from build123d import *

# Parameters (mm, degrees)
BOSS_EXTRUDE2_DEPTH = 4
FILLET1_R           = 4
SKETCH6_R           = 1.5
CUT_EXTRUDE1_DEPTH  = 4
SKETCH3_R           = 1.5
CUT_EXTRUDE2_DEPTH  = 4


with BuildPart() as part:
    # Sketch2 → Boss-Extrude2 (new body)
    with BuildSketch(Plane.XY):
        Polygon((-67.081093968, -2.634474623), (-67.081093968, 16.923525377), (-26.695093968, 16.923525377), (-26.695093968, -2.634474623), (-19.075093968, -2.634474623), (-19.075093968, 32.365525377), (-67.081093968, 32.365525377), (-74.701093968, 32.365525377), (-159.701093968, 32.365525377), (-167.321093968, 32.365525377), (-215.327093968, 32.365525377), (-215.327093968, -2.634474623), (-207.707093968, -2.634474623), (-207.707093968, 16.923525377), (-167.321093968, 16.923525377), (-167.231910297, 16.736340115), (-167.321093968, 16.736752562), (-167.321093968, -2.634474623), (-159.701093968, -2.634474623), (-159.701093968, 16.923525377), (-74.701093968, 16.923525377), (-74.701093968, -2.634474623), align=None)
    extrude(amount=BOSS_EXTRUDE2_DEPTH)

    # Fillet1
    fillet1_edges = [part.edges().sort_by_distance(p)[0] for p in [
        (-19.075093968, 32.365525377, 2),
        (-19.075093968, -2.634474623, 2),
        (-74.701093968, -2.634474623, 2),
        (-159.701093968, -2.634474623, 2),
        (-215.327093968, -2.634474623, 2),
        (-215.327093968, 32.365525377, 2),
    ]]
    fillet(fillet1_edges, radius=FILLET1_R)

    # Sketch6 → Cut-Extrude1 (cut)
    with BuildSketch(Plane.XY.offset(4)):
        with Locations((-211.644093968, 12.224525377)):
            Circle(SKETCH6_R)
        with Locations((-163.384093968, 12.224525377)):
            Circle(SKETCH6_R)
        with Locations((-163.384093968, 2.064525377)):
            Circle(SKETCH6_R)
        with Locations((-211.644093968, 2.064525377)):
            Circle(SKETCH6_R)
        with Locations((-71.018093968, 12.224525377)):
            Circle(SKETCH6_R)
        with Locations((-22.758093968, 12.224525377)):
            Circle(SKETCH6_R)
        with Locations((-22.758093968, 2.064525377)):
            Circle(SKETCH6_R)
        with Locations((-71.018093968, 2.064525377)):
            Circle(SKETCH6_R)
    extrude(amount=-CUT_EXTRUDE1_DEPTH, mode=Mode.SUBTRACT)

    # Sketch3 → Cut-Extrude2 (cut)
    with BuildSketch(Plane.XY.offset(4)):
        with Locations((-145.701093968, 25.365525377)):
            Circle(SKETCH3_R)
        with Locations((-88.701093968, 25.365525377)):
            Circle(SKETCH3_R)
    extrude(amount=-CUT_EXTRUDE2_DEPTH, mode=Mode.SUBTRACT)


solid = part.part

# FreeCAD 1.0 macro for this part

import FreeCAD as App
import Part
import Sketcher

V = App.Vector
Q = App.Units.Quantity


def edges_at(feature, points):
    """Names of the edges that pass closest to the given points."""
    edges = feature.Shape.Edges
    near = lambda p: min(range(len(edges)), key=lambda i: edges[i].distToShape(Part.Vertex(*p))[0])
    return sorted({f"Edge{near(p) + 1}" for p in points})


def add_polygon(sketch, points):
    """Adds a closed chain of lines whose ends are joined by coincident constraints."""
    first, n = sketch.GeometryCount, len(points)
    for a, b in zip(points, points[1:] + points[:1]):
        sketch.addGeometry(Part.LineSegment(App.Vector(*a, 0), App.Vector(*b, 0)), False)
    for i in range(n):
        sketch.addConstraint(Sketcher.Constraint("Coincident", first + i, 2, first + (i + 1) % n, 1))

doc = App.newDocument("Part")
body = doc.addObject("PartDesign::Body", "Body")

# Sketch on XY plane
sketch1 = body.newObject("Sketcher::SketchObject", "Sketch")
sketch1.AttachmentSupport = (doc.getObject("XY_Plane"), [""])
sketch1.MapMode = "FlatFace"
add_polygon(sketch1, [(-67.08, -2.63), (-67.08, 16.92), (-26.7, 16.92), (-26.7, -2.63), (-19.08, -2.63), (-19.08, 32.37), (-215.33, 32.37), (-215.33, -2.63), (-207.71, -2.63), (-207.71, 16.92), (-167.32, 16.92), (-167.23, 16.74), (-167.32, 16.74), (-167.32, -2.63), (-159.7, -2.63), (-159.7, 16.92), (-74.7, 16.92), (-74.7, -2.63)])  # lines 0-17
sketch1.addConstraint([
    Sketcher.Constraint("Vertical", 0),
    Sketcher.Constraint("Horizontal", 1),
    Sketcher.Constraint("Vertical", 2),
    Sketcher.Constraint("Horizontal", 3),
    Sketcher.Constraint("Vertical", 4),
    Sketcher.Constraint("Horizontal", 5),
    Sketcher.Constraint("Vertical", 6),
    Sketcher.Constraint("Horizontal", 7),
    Sketcher.Constraint("Vertical", 8),
    Sketcher.Constraint("Horizontal", 9),
    Sketcher.Constraint("Vertical", 12),
    Sketcher.Constraint("Horizontal", 13),
    Sketcher.Constraint("Vertical", 14),
    Sketcher.Constraint("Horizontal", 15),
    Sketcher.Constraint("Vertical", 16),
    Sketcher.Constraint("Horizontal", 17),
    Sketcher.Constraint("Horizontal", 3, 2, 6, 2),
    Sketcher.Constraint("Horizontal", 1, 2, 8, 2),
    Sketcher.Constraint("Horizontal", 7, 2, 12, 2),
    Sketcher.Constraint("Horizontal", 9, 2, 14, 2),
    Sketcher.Constraint("Horizontal", 13, 2, 16, 2),
    Sketcher.Constraint("Vertical", 9, 2, 11, 2),
    Sketcher.Constraint("Equal", 3, 7),
    Sketcher.Constraint("Equal", 1, 9),
    Sketcher.Constraint("Equal", 7, 13),
    Sketcher.Constraint("Equal", 13, 17),
    Sketcher.Constraint("DistanceX", 15, 1, 15, 2, Q("85 mm")),
    Sketcher.Constraint("DistanceY", 4, 1, 4, 2, Q("35 mm")),
    Sketcher.Constraint("DistanceX", 3, 1, 3, 2, Q("7.62 mm")),
    Sketcher.Constraint("DistanceX", 1, 1, 1, 2, Q("40.386 mm")),
    Sketcher.Constraint("DistanceY", 0, 1, 0, 2, Q("19.558 mm")),
    Sketcher.Constraint("DistanceY", 12, 2, 12, 1, Q("19.371227 mm")),
    Sketcher.Constraint("DistanceX", 10, 2, -1, 1, Q("167.23191 mm")),
    Sketcher.Constraint("DistanceY", -1, 1, 10, 2, Q("16.73634 mm")),
    Sketcher.Constraint("Distance", 10, Q("0.207345 mm")),
    Sketcher.Constraint("Distance", 11, Q("0.089185 mm")),
])
pad1 = body.newObject("PartDesign::Pad", "Pad")
pad1.Profile = sketch1
pad1.Length = 4
doc.recompute()

fillet = body.newObject("PartDesign::Fillet", "Fillet")
fillet.Base = (pad1, edges_at(pad1, [
    (-19.075, 32.366, 2),
    (-19.075, -2.634, 2),
    (-74.701, -2.634, 2),
    (-159.701, -2.634, 2),
    (-215.327, -2.634, 2),
    (-215.327, 32.366, 2),
]))
fillet.Radius = 4

# Sketch on XY plane
sketch2 = body.newObject("Sketcher::SketchObject", "Sketch001")
sketch2.AttachmentSupport = (doc.getObject("XY_Plane"), [""])
sketch2.MapMode = "FlatFace"
sketch2.AttachmentOffset = App.Placement(V(0, 0, 4), App.Rotation())
sketch2.addGeometry([
    Part.Circle(V(-211.6, 12.2, 0), V(0, 0, 1), 1.5),  # 0
    Part.Circle(V(-163.4, 12.2, 0), V(0, 0, 1), 1.5),  # 1
    Part.Circle(V(-163.4, 2.1, 0), V(0, 0, 1), 1.5),  # 2
    Part.Circle(V(-211.6, 2.1, 0), V(0, 0, 1), 1.5),  # 3
    Part.Circle(V(-71, 12.2, 0), V(0, 0, 1), 1.5),  # 4
    Part.Circle(V(-22.8, 12.2, 0), V(0, 0, 1), 1.5),  # 5
    Part.Circle(V(-22.8, 2.1, 0), V(0, 0, 1), 1.5),  # 6
    Part.Circle(V(-71, 2.1, 0), V(0, 0, 1), 1.5),  # 7
], False)
sketch2.addConstraint([
    Sketcher.Constraint("Equal", 0, 1),
    Sketcher.Constraint("Equal", 1, 2),
    Sketcher.Constraint("Equal", 2, 3),
    Sketcher.Constraint("Equal", 3, 4),
    Sketcher.Constraint("Equal", 4, 5),
    Sketcher.Constraint("Equal", 5, 6),
    Sketcher.Constraint("Equal", 6, 7),
    Sketcher.Constraint("Horizontal", 0, 3, 1, 3),
    Sketcher.Constraint("Horizontal", 2, 3, 3, 3),
    Sketcher.Constraint("Horizontal", 1, 3, 4, 3),
    Sketcher.Constraint("Horizontal", 4, 3, 5, 3),
    Sketcher.Constraint("Horizontal", 3, 3, 6, 3),
    Sketcher.Constraint("Horizontal", 6, 3, 7, 3),
    Sketcher.Constraint("Vertical", 1, 3, 2, 3),
    Sketcher.Constraint("Vertical", 0, 3, 3, 3),
    Sketcher.Constraint("Vertical", 5, 3, 6, 3),
    Sketcher.Constraint("Vertical", 4, 3, 7, 3),
    Sketcher.Constraint("Diameter", 0, Q("3 mm")),
    Sketcher.Constraint("DistanceX", 0, 3, 1, 3, Q("48.26 mm")),
    Sketcher.Constraint("DistanceY", 2, 3, 1, 3, Q("10.16 mm")),
    Sketcher.Constraint("DistanceX", 4, 3, 5, 3, Q("48.26 mm")),
    Sketcher.Constraint("DistanceX", 1, 3, 4, 3, Q("92.366 mm")),
    Sketcher.Constraint("DistanceX", 0, 3, -1, 1, Q("211.644094 mm")),
    Sketcher.Constraint("DistanceY", -1, 1, 0, 3, Q("12.224525 mm")),
])
pocket1 = body.newObject("PartDesign::Pocket", "Pocket")
pocket1.Profile = sketch2
pocket1.Length = 4

# Sketch on XY plane
sketch3 = body.newObject("Sketcher::SketchObject", "Sketch002")
sketch3.AttachmentSupport = (doc.getObject("XY_Plane"), [""])
sketch3.MapMode = "FlatFace"
sketch3.AttachmentOffset = App.Placement(V(0, 0, 4), App.Rotation())
sketch3.addGeometry([
    Part.Circle(V(-145.7, 25.4, 0), V(0, 0, 1), 1.5),
    Part.Circle(V(-88.7, 25.4, 0), V(0, 0, 1), 1.5),
], False)
sketch3.addConstraint([
    Sketcher.Constraint("Equal", 0, 1),
    Sketcher.Constraint("Horizontal", 0, 3, 1, 3),
    Sketcher.Constraint("Diameter", 0, Q("3 mm")),
    Sketcher.Constraint("DistanceX", 0, 3, 1, 3, Q("57 mm")),
    Sketcher.Constraint("DistanceX", 0, 3, -1, 1, Q("145.701094 mm")),
    Sketcher.Constraint("DistanceY", -1, 1, 0, 3, Q("25.365525 mm")),
])
pocket2 = body.newObject("PartDesign::Pocket", "Pocket001")
pocket2.Profile = sketch3
pocket2.Length = 4

doc.recompute()
